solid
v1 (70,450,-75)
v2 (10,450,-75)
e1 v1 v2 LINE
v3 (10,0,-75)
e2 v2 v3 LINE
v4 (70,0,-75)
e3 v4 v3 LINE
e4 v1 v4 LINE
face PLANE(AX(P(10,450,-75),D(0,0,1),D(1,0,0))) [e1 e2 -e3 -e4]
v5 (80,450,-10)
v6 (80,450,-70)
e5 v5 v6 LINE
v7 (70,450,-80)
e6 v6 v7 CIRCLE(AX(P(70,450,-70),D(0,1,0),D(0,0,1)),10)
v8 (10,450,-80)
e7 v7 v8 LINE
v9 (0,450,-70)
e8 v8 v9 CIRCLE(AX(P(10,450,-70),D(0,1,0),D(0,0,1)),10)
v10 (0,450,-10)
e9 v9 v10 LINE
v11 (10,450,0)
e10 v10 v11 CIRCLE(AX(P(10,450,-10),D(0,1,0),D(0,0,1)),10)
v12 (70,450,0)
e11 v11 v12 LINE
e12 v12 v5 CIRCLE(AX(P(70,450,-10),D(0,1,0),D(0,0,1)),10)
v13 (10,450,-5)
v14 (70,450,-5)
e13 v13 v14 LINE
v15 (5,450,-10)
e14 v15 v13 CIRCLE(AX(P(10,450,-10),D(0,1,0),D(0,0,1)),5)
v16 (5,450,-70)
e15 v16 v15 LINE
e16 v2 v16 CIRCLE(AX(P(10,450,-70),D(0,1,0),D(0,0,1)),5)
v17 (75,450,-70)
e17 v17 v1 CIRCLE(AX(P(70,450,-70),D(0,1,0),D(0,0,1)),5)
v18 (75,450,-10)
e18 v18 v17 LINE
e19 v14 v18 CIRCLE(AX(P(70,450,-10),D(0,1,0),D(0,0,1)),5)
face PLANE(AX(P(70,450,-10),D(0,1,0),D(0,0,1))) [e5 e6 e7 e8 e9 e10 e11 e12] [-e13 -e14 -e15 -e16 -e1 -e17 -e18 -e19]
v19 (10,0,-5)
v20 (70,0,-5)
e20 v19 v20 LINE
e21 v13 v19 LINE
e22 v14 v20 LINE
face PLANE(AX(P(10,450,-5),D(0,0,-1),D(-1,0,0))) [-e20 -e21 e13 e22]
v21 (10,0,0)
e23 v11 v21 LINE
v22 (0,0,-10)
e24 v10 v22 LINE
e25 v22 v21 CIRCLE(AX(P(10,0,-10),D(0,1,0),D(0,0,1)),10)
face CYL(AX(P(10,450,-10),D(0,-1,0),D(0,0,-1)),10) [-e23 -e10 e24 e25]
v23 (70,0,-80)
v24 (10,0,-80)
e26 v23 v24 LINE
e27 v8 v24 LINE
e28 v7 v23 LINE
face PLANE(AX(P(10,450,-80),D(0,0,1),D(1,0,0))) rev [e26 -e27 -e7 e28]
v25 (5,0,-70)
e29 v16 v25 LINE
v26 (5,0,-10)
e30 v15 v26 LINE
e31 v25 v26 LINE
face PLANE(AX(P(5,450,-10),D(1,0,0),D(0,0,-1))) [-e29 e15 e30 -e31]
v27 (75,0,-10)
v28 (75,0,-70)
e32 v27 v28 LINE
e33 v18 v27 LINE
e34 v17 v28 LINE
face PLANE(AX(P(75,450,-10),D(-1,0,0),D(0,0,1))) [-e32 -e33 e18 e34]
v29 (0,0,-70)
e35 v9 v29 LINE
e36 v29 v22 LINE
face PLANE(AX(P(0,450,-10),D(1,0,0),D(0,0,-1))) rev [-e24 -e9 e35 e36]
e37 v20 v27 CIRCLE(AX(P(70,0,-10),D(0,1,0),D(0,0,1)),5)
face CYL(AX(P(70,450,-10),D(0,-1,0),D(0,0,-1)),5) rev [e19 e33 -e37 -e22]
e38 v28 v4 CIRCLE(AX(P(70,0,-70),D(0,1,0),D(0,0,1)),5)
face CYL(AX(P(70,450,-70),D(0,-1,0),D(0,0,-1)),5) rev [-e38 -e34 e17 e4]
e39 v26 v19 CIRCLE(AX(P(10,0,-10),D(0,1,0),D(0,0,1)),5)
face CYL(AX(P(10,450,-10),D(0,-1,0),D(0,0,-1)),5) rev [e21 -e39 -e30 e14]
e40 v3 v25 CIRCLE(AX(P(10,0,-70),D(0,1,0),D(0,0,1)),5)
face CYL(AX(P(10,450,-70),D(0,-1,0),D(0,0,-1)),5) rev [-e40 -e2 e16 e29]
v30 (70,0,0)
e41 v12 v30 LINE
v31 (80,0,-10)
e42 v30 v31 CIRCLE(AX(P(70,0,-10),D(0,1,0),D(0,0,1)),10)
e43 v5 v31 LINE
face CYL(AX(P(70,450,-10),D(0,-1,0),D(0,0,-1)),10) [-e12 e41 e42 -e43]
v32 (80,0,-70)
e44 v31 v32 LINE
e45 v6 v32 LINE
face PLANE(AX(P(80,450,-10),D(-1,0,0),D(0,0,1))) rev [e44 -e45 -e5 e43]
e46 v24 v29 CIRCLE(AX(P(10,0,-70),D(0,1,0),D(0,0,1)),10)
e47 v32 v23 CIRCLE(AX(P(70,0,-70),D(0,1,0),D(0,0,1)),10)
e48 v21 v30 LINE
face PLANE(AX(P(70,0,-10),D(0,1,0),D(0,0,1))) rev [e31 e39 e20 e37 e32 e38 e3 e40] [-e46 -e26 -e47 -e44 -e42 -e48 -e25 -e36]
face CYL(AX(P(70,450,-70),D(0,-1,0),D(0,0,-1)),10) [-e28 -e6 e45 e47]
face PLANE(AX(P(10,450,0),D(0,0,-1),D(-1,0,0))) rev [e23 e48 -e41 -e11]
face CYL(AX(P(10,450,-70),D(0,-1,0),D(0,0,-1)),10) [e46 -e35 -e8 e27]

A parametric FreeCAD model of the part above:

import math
import FreeCAD as App
import Part
import Sketcher
from FreeCAD import Vector
Q = App.Units.Quantity

doc = App.newDocument("Part")
body = doc.addObject("PartDesign::Body", "Body")

# Sketch on XZ plane
sketch1 = doc.addObject("Sketcher::SketchObject", "Sketch")
body.addObject(sketch1)
sketch1.AttachmentSupport = (doc.XZ_Plane, [""])
sketch1.MapMode = "FlatFace"
sketch1.addGeometry([
    Part.LineSegment(Vector(10, 0, 0), Vector(70, 0, 0)),  # 0
    Part.ArcOfCircle(Part.Circle(Vector(70, -10, 0), Vector(0, 0, 1), 10), math.radians(0), math.radians(90)),  # 1
    Part.LineSegment(Vector(80, -10, 0), Vector(80, -70, 0)),  # 2
    Part.ArcOfCircle(Part.Circle(Vector(70, -70, 0), Vector(0, 0, 1), 10), math.radians(-90), math.radians(0)),  # 3
    Part.LineSegment(Vector(70, -80, 0), Vector(10, -80, 0)),  # 4
    Part.ArcOfCircle(Part.Circle(Vector(10, -70, 0), Vector(0, 0, 1), 10), math.radians(180), math.radians(270)),  # 5
    Part.LineSegment(Vector(0, -70, 0), Vector(0, -10, 0)),  # 6
    Part.ArcOfCircle(Part.Circle(Vector(10, -10, 0), Vector(0, 0, 1), 10), math.radians(90), math.radians(180)),  # 7
    Part.ArcOfCircle(Part.Circle(Vector(10, -10, 0), Vector(0, 0, 1), 5), math.radians(90), math.radians(180)),  # 8
    Part.LineSegment(Vector(5, -10, 0), Vector(5, -70, 0)),  # 9
    Part.ArcOfCircle(Part.Circle(Vector(10, -70, 0), Vector(0, 0, 1), 5), math.radians(180), math.radians(270)),  # 10
    Part.LineSegment(Vector(10, -75, 0), Vector(70, -75, 0)),  # 11
    Part.ArcOfCircle(Part.Circle(Vector(70, -70, 0), Vector(0, 0, 1), 5), math.radians(-90), math.radians(0)),  # 12
    Part.LineSegment(Vector(75, -70, 0), Vector(75, -10, 0)),  # 13
    Part.ArcOfCircle(Part.Circle(Vector(70, -10, 0), Vector(0, 0, 1), 5), math.radians(0), math.radians(90)),  # 14
    Part.LineSegment(Vector(70, -5, 0), Vector(10, -5, 0)),  # 15
], False)
sketch1.addConstraint([
    Sketcher.Constraint("Tangent", 0, 2, 1, 2),
    Sketcher.Constraint("Tangent", 1, 1, 2, 1),
    Sketcher.Constraint("Tangent", 2, 2, 3, 2),
    Sketcher.Constraint("Tangent", 3, 1, 4, 1),
    Sketcher.Constraint("Tangent", 4, 2, 5, 2),
    Sketcher.Constraint("Tangent", 5, 1, 6, 1),
    Sketcher.Constraint("Tangent", 6, 2, 7, 2),
    Sketcher.Constraint("Tangent", 7, 1, 0, 1),
    Sketcher.Constraint("Tangent", 8, 2, 9, 1),
    Sketcher.Constraint("Tangent", 9, 2, 10, 1),
    Sketcher.Constraint("Tangent", 10, 2, 11, 1),
    Sketcher.Constraint("Tangent", 11, 2, 12, 1),
    Sketcher.Constraint("Tangent", 12, 2, 13, 1),
    Sketcher.Constraint("Tangent", 13, 2, 14, 1),
    Sketcher.Constraint("Tangent", 14, 2, 15, 1),
    Sketcher.Constraint("Tangent", 15, 2, 8, 1),
    Sketcher.Constraint("Horizontal", 0),
    Sketcher.Constraint("Vertical", 2),
    Sketcher.Constraint("Horizontal", 4),
    Sketcher.Constraint("Vertical", 6),
    Sketcher.Constraint("Vertical", 9),
    Sketcher.Constraint("Horizontal", 11),
    Sketcher.Constraint("Vertical", 13),
    Sketcher.Constraint("Horizontal", 15),
    Sketcher.Constraint("Coincident", 8, 3, 7, 3),
    Sketcher.Constraint("Coincident", 10, 3, 5, 3),
    Sketcher.Constraint("Coincident", 12, 3, 3, 3),
    Sketcher.Constraint("Equal", 1, 3),
    Sketcher.Constraint("Equal", 3, 5),
    Sketcher.Constraint("Equal", 5, 7),
    Sketcher.Constraint("Equal", 12, 14),
    Sketcher.Constraint("PointOnObject", 0, 2, -1),
    Sketcher.Constraint("PointOnObject", 5, 1, -2),
    Sketcher.Constraint("Equal", 15, 2),
    Sketcher.Constraint("Radius", 1, Q("10 mm")),
    Sketcher.Constraint("Radius", 8, Q("5 mm")),
    Sketcher.Constraint("DistanceX", 0, 1, 0, 2, Q("60 mm")),
])
pad1 = doc.addObject("PartDesign::Pad", "Pad")
body.addObject(pad1)
pad1.Profile = sketch1
pad1.Length = 450
pad1.Reversed = True

doc.recompute()
